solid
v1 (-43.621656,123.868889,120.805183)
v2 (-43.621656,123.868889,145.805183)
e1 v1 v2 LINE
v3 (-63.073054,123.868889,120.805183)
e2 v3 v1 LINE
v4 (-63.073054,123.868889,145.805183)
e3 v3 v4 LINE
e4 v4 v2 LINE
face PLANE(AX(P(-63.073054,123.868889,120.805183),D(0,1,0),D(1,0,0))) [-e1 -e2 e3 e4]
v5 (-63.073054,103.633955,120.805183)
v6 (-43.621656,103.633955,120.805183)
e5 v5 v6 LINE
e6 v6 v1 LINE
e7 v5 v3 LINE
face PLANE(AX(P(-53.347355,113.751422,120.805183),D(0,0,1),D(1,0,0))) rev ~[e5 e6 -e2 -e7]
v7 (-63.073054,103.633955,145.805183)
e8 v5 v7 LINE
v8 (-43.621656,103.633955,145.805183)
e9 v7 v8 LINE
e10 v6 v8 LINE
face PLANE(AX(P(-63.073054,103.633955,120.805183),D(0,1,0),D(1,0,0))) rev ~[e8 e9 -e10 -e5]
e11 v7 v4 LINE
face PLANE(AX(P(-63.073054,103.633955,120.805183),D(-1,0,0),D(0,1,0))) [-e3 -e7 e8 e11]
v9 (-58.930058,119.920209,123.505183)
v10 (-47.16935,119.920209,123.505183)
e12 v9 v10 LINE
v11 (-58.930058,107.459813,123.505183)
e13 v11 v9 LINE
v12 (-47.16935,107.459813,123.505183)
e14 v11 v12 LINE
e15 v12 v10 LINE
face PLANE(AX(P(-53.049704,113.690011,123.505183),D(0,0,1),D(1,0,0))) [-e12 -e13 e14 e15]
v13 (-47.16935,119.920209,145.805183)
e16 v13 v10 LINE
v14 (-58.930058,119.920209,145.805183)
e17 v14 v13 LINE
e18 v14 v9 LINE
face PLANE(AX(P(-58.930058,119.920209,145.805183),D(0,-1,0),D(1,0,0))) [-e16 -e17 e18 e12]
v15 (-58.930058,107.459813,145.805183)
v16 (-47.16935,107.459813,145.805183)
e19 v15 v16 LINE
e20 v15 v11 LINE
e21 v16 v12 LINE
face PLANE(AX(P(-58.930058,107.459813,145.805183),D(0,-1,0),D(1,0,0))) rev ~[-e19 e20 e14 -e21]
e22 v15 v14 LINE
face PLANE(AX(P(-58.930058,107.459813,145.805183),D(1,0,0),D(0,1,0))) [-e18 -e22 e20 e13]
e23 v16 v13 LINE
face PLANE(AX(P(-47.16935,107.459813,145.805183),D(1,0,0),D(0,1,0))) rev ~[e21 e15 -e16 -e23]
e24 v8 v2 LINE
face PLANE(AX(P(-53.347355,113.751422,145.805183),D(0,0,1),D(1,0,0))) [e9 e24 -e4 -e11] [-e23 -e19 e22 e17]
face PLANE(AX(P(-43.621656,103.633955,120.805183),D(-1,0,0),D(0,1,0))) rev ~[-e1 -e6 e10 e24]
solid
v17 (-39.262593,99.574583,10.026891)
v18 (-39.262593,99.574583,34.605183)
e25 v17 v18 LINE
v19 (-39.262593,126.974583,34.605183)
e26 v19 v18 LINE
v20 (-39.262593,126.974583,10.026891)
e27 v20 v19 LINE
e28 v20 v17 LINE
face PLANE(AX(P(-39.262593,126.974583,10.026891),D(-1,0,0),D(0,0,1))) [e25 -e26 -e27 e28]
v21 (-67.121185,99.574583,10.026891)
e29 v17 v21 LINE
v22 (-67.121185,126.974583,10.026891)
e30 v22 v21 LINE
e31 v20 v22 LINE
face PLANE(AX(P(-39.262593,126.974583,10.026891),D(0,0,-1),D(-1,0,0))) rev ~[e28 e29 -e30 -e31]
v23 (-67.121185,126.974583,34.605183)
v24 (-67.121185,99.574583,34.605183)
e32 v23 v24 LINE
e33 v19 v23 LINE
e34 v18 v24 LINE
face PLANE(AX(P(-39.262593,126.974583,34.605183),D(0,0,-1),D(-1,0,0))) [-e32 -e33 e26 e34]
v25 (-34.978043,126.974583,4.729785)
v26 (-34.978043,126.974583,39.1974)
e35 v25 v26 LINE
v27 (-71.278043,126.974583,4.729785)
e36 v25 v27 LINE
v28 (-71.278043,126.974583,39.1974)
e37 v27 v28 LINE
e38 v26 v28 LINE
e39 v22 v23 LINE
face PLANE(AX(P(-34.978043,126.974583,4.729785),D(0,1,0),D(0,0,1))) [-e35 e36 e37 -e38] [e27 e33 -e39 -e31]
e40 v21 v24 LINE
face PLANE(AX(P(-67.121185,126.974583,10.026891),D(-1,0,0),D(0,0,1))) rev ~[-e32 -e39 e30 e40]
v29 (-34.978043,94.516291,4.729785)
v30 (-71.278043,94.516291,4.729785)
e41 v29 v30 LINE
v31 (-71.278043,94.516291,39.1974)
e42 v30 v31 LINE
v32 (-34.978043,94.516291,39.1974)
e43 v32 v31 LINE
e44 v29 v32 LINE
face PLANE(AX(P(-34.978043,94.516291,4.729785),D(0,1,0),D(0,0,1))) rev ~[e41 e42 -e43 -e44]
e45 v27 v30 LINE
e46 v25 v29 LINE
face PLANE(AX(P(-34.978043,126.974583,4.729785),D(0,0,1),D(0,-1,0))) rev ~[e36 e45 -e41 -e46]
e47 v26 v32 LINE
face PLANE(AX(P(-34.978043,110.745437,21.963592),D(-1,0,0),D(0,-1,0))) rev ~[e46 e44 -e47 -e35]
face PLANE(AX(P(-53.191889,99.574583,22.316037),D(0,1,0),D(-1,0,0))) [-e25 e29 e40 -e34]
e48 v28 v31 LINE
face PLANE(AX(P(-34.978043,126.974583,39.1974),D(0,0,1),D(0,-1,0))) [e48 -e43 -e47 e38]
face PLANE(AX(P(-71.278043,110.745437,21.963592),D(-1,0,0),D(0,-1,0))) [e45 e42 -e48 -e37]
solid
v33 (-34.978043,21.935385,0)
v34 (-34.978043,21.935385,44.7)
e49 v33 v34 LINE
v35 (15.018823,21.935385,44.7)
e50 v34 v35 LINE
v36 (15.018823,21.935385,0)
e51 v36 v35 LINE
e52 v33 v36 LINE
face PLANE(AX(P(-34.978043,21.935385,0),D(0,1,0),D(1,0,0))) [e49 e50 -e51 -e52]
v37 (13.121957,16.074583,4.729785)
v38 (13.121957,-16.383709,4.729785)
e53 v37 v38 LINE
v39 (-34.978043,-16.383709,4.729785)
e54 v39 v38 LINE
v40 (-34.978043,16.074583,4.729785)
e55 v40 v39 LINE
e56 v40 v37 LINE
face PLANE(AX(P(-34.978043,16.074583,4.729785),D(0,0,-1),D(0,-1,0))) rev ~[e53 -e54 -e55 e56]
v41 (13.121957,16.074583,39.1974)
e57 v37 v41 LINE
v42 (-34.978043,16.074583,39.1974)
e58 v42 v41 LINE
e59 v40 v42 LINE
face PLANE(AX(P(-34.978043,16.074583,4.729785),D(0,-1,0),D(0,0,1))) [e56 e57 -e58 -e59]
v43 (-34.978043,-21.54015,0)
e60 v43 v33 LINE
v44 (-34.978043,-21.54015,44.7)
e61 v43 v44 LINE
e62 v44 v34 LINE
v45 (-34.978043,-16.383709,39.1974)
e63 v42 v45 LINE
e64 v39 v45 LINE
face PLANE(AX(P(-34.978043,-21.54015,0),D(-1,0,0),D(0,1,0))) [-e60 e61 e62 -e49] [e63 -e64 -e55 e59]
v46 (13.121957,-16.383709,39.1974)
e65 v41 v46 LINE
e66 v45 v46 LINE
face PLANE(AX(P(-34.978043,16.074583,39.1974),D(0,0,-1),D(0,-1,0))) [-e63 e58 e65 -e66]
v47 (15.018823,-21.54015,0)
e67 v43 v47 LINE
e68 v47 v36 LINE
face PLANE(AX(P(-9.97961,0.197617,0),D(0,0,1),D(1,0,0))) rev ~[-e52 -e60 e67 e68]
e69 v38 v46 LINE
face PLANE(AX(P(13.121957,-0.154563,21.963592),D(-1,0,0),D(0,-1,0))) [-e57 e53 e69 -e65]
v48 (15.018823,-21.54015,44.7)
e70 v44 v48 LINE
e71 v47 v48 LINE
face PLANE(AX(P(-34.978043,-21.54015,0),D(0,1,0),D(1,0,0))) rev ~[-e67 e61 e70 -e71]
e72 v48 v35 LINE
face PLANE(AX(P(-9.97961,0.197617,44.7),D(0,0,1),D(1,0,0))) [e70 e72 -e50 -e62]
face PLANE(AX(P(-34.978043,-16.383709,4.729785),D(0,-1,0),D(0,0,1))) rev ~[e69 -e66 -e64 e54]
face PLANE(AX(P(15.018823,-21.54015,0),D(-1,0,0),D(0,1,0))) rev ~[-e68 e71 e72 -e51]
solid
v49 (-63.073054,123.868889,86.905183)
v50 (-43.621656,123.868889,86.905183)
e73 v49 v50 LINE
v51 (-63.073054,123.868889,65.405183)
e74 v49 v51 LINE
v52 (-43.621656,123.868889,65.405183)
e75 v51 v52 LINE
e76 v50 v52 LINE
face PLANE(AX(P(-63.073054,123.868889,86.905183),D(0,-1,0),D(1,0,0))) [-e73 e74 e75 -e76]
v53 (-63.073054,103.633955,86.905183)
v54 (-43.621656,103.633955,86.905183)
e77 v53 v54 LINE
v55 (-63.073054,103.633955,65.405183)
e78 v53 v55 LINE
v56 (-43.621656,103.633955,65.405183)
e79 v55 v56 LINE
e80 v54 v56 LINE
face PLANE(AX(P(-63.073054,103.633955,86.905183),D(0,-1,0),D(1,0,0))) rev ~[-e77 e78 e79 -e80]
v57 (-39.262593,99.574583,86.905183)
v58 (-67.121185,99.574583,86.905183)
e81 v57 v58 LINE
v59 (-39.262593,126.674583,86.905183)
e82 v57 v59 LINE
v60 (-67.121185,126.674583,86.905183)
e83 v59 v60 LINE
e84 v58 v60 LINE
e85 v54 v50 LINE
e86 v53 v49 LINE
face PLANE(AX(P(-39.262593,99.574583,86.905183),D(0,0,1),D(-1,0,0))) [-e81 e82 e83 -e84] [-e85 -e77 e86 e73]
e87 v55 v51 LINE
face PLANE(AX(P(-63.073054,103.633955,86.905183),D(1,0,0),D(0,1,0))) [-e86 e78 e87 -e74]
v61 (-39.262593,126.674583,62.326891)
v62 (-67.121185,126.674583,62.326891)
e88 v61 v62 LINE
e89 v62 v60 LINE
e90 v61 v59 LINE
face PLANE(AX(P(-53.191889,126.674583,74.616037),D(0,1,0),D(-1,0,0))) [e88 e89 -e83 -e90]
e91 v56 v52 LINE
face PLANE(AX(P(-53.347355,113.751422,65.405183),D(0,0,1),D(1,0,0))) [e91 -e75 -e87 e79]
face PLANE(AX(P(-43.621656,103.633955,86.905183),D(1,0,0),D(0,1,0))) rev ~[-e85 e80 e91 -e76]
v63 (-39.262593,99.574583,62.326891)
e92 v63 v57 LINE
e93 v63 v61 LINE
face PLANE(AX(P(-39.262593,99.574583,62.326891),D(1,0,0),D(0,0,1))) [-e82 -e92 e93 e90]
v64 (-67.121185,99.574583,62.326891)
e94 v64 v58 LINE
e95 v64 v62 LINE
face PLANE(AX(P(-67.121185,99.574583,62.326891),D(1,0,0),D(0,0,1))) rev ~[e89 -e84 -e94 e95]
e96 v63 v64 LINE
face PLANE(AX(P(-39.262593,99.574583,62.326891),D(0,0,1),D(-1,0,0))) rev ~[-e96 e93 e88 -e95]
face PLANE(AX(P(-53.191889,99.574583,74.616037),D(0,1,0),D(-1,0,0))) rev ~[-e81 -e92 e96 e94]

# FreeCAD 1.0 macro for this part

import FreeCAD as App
import Part
import Sketcher

V = App.Vector
Q = App.Units.Quantity

doc = App.newDocument("Part")
body = doc.addObject("PartDesign::Body", "Body")

# Sketch on XY plane
sketch1 = body.newObject("Sketcher::SketchObject", "Sketch")
sketch1.AttachmentSupport = (doc.getObject("XY_Plane"), [""])
sketch1.MapMode = "FlatFace"
sketch1.addGeometry(Part.LineSegment(V(-35, 22, 0), V(-35, -22, 0)), False)
sketch1.addGeometry(Part.LineSegment(V(-35, -22, 0), V(15, -22, 0)), False)
sketch1.addGeometry(Part.LineSegment(V(15, -22, 0), V(15, 22, 0)), False)
sketch1.addGeometry(Part.LineSegment(V(15, 22, 0), V(-35, 22, 0)), False)
sketch1.addConstraint(Sketcher.Constraint("Coincident", 0, 2, 1, 1))
sketch1.addConstraint(Sketcher.Constraint("Coincident", 1, 2, 2, 1))
sketch1.addConstraint(Sketcher.Constraint("Coincident", 2, 2, 3, 1))
sketch1.addConstraint(Sketcher.Constraint("Coincident", 3, 2, 0, 1))
sketch1.addConstraint(Sketcher.Constraint("Vertical", 0))
sketch1.addConstraint(Sketcher.Constraint("Horizontal", 1))
sketch1.addConstraint(Sketcher.Constraint("Vertical", 2))
sketch1.addConstraint(Sketcher.Constraint("Horizontal", 3))
sketch1.addConstraint(Sketcher.Constraint("DistanceX", 1, 1, 1, 2, Q("49.996865 mm")))
sketch1.addConstraint(Sketcher.Constraint("DistanceY", 0, 2, 0, 1, Q("43.475535 mm")))
sketch1.addConstraint(Sketcher.Constraint("DistanceY", 0, 2, -1, 1, Q("21.54015 mm")))
sketch1.addConstraint(Sketcher.Constraint("DistanceX", 0, 2, -1, 1, Q("34.978043 mm")))
pad1 = body.newObject("PartDesign::Pad", "Pad")
pad1.Profile = sketch1
pad1.Length = 44.7

# Sketch on YZ plane
sketch2 = body.newObject("Sketcher::SketchObject", "Sketch001")
sketch2.AttachmentSupport = (doc.getObject("YZ_Plane"), [""])
sketch2.MapMode = "FlatFace"
sketch2.AttachmentOffset = App.Placement(V(0, 0, -34.978043), App.Rotation())
sketch2.addGeometry(Part.LineSegment(V(16, 39, 0), V(16, 5, 0)), False)
sketch2.addGeometry(Part.LineSegment(V(16, 5, 0), V(-16, 5, 0)), False)
sketch2.addGeometry(Part.LineSegment(V(-16, 5, 0), V(-16, 39, 0)), False)
sketch2.addGeometry(Part.LineSegment(V(-16, 39, 0), V(16, 39, 0)), False)
sketch2.addConstraint(Sketcher.Constraint("Coincident", 0, 2, 1, 1))
sketch2.addConstraint(Sketcher.Constraint("Coincident", 1, 2, 2, 1))
sketch2.addConstraint(Sketcher.Constraint("Coincident", 2, 2, 3, 1))
sketch2.addConstraint(Sketcher.Constraint("Coincident", 3, 2, 0, 1))
sketch2.addConstraint(Sketcher.Constraint("Vertical", 0))
sketch2.addConstraint(Sketcher.Constraint("Horizontal", 1))
sketch2.addConstraint(Sketcher.Constraint("Vertical", 2))
sketch2.addConstraint(Sketcher.Constraint("Horizontal", 3))
sketch2.addConstraint(Sketcher.Constraint("DistanceY", -1, 1, 2, 2, Q("39.1974 mm")))
sketch2.addConstraint(Sketcher.Constraint("DistanceX", 1, 2, 1, 1, Q("32.458292 mm")))
sketch2.addConstraint(Sketcher.Constraint("DistanceY", 0, 2, 0, 1, Q("34.467615 mm")))
sketch2.addConstraint(Sketcher.Constraint("DistanceX", 1, 2, -1, 1, Q("16.383709 mm")))
pocket1 = body.newObject("PartDesign::Pocket", "Pocket")
pocket1.Profile = sketch2
pocket1.Length = 48.1
pocket1.Reversed = True
body2 = doc.addObject("PartDesign::Body", "Body001")

# Sketch on YZ plane
sketch3 = body2.newObject("Sketcher::SketchObject", "Sketch002")
sketch3.AttachmentSupport = (doc.getObject("YZ_Plane001"), [""])
sketch3.MapMode = "FlatFace"
sketch3.AttachmentOffset = App.Placement(V(0, 0, -34.978043), App.Rotation())
sketch3.addGeometry(Part.LineSegment(V(16, 39, 0), V(16, 5, 0)), False)
sketch3.addGeometry(Part.LineSegment(V(16, 5, 0), V(-16, 5, 0)), False)
sketch3.addGeometry(Part.LineSegment(V(-16, 5, 0), V(-16, 39, 0)), False)
sketch3.addGeometry(Part.LineSegment(V(-16, 39, 0), V(16, 39, 0)), False)
sketch3.addConstraint(Sketcher.Constraint("Coincident", 0, 2, 1, 1))
sketch3.addConstraint(Sketcher.Constraint("Coincident", 1, 2, 2, 1))
sketch3.addConstraint(Sketcher.Constraint("Coincident", 2, 2, 3, 1))
sketch3.addConstraint(Sketcher.Constraint("Coincident", 3, 2, 0, 1))
sketch3.addConstraint(Sketcher.Constraint("Vertical", 0))
sketch3.addConstraint(Sketcher.Constraint("Horizontal", 1))
sketch3.addConstraint(Sketcher.Constraint("Vertical", 2))
sketch3.addConstraint(Sketcher.Constraint("Horizontal", 3))
sketch3.addConstraint(Sketcher.Constraint("DistanceY", -1, 1, 2, 2, Q("39.1974 mm")))
sketch3.addConstraint(Sketcher.Constraint("DistanceX", 1, 2, 1, 1, Q("32.458292 mm")))
sketch3.addConstraint(Sketcher.Constraint("DistanceY", 0, 2, 0, 1, Q("34.467615 mm")))
sketch3.addConstraint(Sketcher.Constraint("DistanceX", 1, 2, -1, 1, Q("16.383709 mm")))
pad2 = body2.newObject("PartDesign::Pad", "Pad001")
pad2.Profile = sketch3
pad2.Length = 36.3
pad2.Reversed = True
body3 = doc.addObject("PartDesign::Body", "Body002")
doc.recompute()

body2.Placement = App.Placement(V(0, 110.9, 0), App.Rotation(V(0, 0, 1), 0))
boolean = body3.newObject("PartDesign::Boolean", "Boolean")
boolean.Type = "Fuse"
boolean.addObjects([body2])

# Sketch on XZ plane
sketch4 = body3.newObject("Sketcher::SketchObject", "Sketch003")
sketch4.AttachmentSupport = (doc.getObject("XZ_Plane002"), [""])
sketch4.MapMode = "FlatFace"
sketch4.AttachmentOffset = App.Placement(V(0, 0, -126.974583), App.Rotation())
sketch4.addGeometry(Part.LineSegment(V(-39, 35, 0), V(-39, 10, 0)), False)
sketch4.addGeometry(Part.LineSegment(V(-39, 10, 0), V(-67, 10, 0)), False)
sketch4.addGeometry(Part.LineSegment(V(-67, 10, 0), V(-67, 35, 0)), False)
sketch4.addGeometry(Part.LineSegment(V(-67, 35, 0), V(-39, 35, 0)), False)
sketch4.addConstraint(Sketcher.Constraint("Coincident", 0, 2, 1, 1))
sketch4.addConstraint(Sketcher.Constraint("Coincident", 1, 2, 2, 1))
sketch4.addConstraint(Sketcher.Constraint("Coincident", 2, 2, 3, 1))
sketch4.addConstraint(Sketcher.Constraint("Coincident", 3, 2, 0, 1))
sketch4.addConstraint(Sketcher.Constraint("Vertical", 0))
sketch4.addConstraint(Sketcher.Constraint("Horizontal", 1))
sketch4.addConstraint(Sketcher.Constraint("Vertical", 2))
sketch4.addConstraint(Sketcher.Constraint("Horizontal", 3))
sketch4.addConstraint(Sketcher.Constraint("DistanceX", 1, 2, 1, 1, Q("27.858592 mm")))
sketch4.addConstraint(Sketcher.Constraint("DistanceY", 0, 2, 0, 1, Q("24.578292 mm")))
sketch4.addConstraint(Sketcher.Constraint("DistanceY", -1, 1, 0, 2, Q("10.026891 mm")))
sketch4.addConstraint(Sketcher.Constraint("DistanceX", 0, 2, -1, 1, Q("39.262593 mm")))
pocket2 = body3.newObject("PartDesign::Pocket", "Pocket001")
pocket2.Profile = sketch4
pocket2.Length = 27.4
pocket2.Reversed = True
body4 = doc.addObject("PartDesign::Body", "Body003")

# Sketch on XZ plane
sketch5 = body4.newObject("Sketcher::SketchObject", "Sketch004")
sketch5.AttachmentSupport = (doc.getObject("XZ_Plane003"), [""])
sketch5.MapMode = "FlatFace"
sketch5.AttachmentOffset = App.Placement(V(0, 0, -99.574583), App.Rotation())
sketch5.addGeometry(Part.LineSegment(V(-39, 35, 0), V(-39, 10, 0)), False)
sketch5.addGeometry(Part.LineSegment(V(-39, 10, 0), V(-67, 10, 0)), False)
sketch5.addGeometry(Part.LineSegment(V(-67, 10, 0), V(-67, 35, 0)), False)
sketch5.addGeometry(Part.LineSegment(V(-67, 35, 0), V(-39, 35, 0)), False)
sketch5.addConstraint(Sketcher.Constraint("Coincident", 0, 2, 1, 1))
sketch5.addConstraint(Sketcher.Constraint("Coincident", 1, 2, 2, 1))
sketch5.addConstraint(Sketcher.Constraint("Coincident", 2, 2, 3, 1))
sketch5.addConstraint(Sketcher.Constraint("Coincident", 3, 2, 0, 1))
sketch5.addConstraint(Sketcher.Constraint("Vertical", 0))
sketch5.addConstraint(Sketcher.Constraint("Horizontal", 1))
sketch5.addConstraint(Sketcher.Constraint("Vertical", 2))
sketch5.addConstraint(Sketcher.Constraint("Horizontal", 3))
sketch5.addConstraint(Sketcher.Constraint("DistanceX", 1, 2, 1, 1, Q("27.858592 mm")))
sketch5.addConstraint(Sketcher.Constraint("DistanceY", 0, 2, 0, 1, Q("24.578292 mm")))
sketch5.addConstraint(Sketcher.Constraint("DistanceY", -1, 1, 0, 2, Q("10.026891 mm")))
sketch5.addConstraint(Sketcher.Constraint("DistanceX", 0, 2, -1, 1, Q("39.262593 mm")))
pad3 = body4.newObject("PartDesign::Pad", "Pad002")
pad3.Profile = sketch5
pad3.Length = 27.1
pad3.Reversed = True
body5 = doc.addObject("PartDesign::Body", "Body004")
doc.recompute()

body4.Placement = App.Placement(V(0, 0, 52.3), App.Rotation(V(0, 0, 1), 0))
boolean2 = body5.newObject("PartDesign::Boolean", "Boolean001")
boolean2.Type = "Fuse"
boolean2.addObjects([body4])

# Sketch on XY plane
sketch6 = body5.newObject("Sketcher::SketchObject", "Sketch005")
sketch6.AttachmentSupport = (doc.getObject("XY_Plane004"), [""])
sketch6.MapMode = "FlatFace"
sketch6.AttachmentOffset = App.Placement(V(0, 0, 86.905183), App.Rotation())
sketch6.addGeometry(Part.LineSegment(V(-63, 124, 0), V(-63, 104, 0)), False)
sketch6.addGeometry(Part.LineSegment(V(-63, 104, 0), V(-44, 104, 0)), False)
sketch6.addGeometry(Part.LineSegment(V(-44, 104, 0), V(-44, 124, 0)), False)
sketch6.addGeometry(Part.LineSegment(V(-44, 124, 0), V(-63, 124, 0)), False)
sketch6.addConstraint(Sketcher.Constraint("Coincident", 0, 2, 1, 1))
sketch6.addConstraint(Sketcher.Constraint("Coincident", 1, 2, 2, 1))
sketch6.addConstraint(Sketcher.Constraint("Coincident", 2, 2, 3, 1))
sketch6.addConstraint(Sketcher.Constraint("Coincident", 3, 2, 0, 1))
sketch6.addConstraint(Sketcher.Constraint("Vertical", 0))
sketch6.addConstraint(Sketcher.Constraint("Horizontal", 1))
sketch6.addConstraint(Sketcher.Constraint("Vertical", 2))
sketch6.addConstraint(Sketcher.Constraint("Horizontal", 3))
sketch6.addConstraint(Sketcher.Constraint("DistanceX", 1, 1, 1, 2, Q("19.451398 mm")))
sketch6.addConstraint(Sketcher.Constraint("DistanceY", 0, 2, 0, 1, Q("20.234935 mm")))
sketch6.addConstraint(Sketcher.Constraint("DistanceY", -1, 1, 2, 2, Q("123.868889 mm")))
sketch6.addConstraint(Sketcher.Constraint("DistanceX", 0, 2, -1, 1, Q("63.073054 mm")))
pocket3 = body5.newObject("PartDesign::Pocket", "Pocket002")
pocket3.Profile = sketch6
pocket3.Length = 21.5
body6 = doc.addObject("PartDesign::Body", "Body005")

# Sketch on XY plane
sketch7 = body6.newObject("Sketcher::SketchObject", "Sketch006")
sketch7.AttachmentSupport = (doc.getObject("XY_Plane005"), [""])
sketch7.MapMode = "FlatFace"
sketch7.AttachmentOffset = App.Placement(V(0, 0, 86.905183), App.Rotation())
sketch7.addGeometry(Part.LineSegment(V(-63, 124, 0), V(-63, 104, 0)), False)
sketch7.addGeometry(Part.LineSegment(V(-63, 104, 0), V(-44, 104, 0)), False)
sketch7.addGeometry(Part.LineSegment(V(-44, 104, 0), V(-44, 124, 0)), False)
sketch7.addGeometry(Part.LineSegment(V(-44, 124, 0), V(-63, 124, 0)), False)
sketch7.addConstraint(Sketcher.Constraint("Coincident", 0, 2, 1, 1))
sketch7.addConstraint(Sketcher.Constraint("Coincident", 1, 2, 2, 1))
sketch7.addConstraint(Sketcher.Constraint("Coincident", 2, 2, 3, 1))
sketch7.addConstraint(Sketcher.Constraint("Coincident", 3, 2, 0, 1))
sketch7.addConstraint(Sketcher.Constraint("Vertical", 0))
sketch7.addConstraint(Sketcher.Constraint("Horizontal", 1))
sketch7.addConstraint(Sketcher.Constraint("Vertical", 2))
sketch7.addConstraint(Sketcher.Constraint("Horizontal", 3))
sketch7.addConstraint(Sketcher.Constraint("DistanceX", 1, 1, 1, 2, Q("19.451398 mm")))
sketch7.addConstraint(Sketcher.Constraint("DistanceY", 0, 2, 0, 1, Q("20.234935 mm")))
sketch7.addConstraint(Sketcher.Constraint("DistanceY", -1, 1, 2, 2, Q("123.868889 mm")))
sketch7.addConstraint(Sketcher.Constraint("DistanceX", 0, 2, -1, 1, Q("63.073054 mm")))
pad4 = body6.newObject("PartDesign::Pad", "Pad003")
pad4.Profile = sketch7
pad4.Length = 25
body7 = doc.addObject("PartDesign::Body", "Body006")
doc.recompute()

body6.Placement = App.Placement(V(0, 0, 33.9), App.Rotation(V(0, 0, 1), 0))
boolean3 = body7.newObject("PartDesign::Boolean", "Boolean002")
boolean3.Type = "Fuse"
boolean3.addObjects([body6])

# Sketch on XY plane
sketch8 = body7.newObject("Sketcher::SketchObject", "Sketch007")
sketch8.AttachmentSupport = (doc.getObject("XY_Plane006"), [""])
sketch8.MapMode = "FlatFace"
sketch8.AttachmentOffset = App.Placement(V(0, 0, 145.805183), App.Rotation())
sketch8.addGeometry(Part.LineSegment(V(-59, 120, 0), V(-59, 107, 0)), False)
sketch8.addGeometry(Part.LineSegment(V(-59, 107, 0), V(-47, 107, 0)), False)
sketch8.addGeometry(Part.LineSegment(V(-47, 107, 0), V(-47, 120, 0)), False)
sketch8.addGeometry(Part.LineSegment(V(-47, 120, 0), V(-59, 120, 0)), False)
sketch8.addConstraint(Sketcher.Constraint("Coincident", 0, 2, 1, 1))
sketch8.addConstraint(Sketcher.Constraint("Coincident", 1, 2, 2, 1))
sketch8.addConstraint(Sketcher.Constraint("Coincident", 2, 2, 3, 1))
sketch8.addConstraint(Sketcher.Constraint("Coincident", 3, 2, 0, 1))
sketch8.addConstraint(Sketcher.Constraint("Vertical", 0))
sketch8.addConstraint(Sketcher.Constraint("Horizontal", 1))
sketch8.addConstraint(Sketcher.Constraint("Vertical", 2))
sketch8.addConstraint(Sketcher.Constraint("Horizontal", 3))
sketch8.addConstraint(Sketcher.Constraint("DistanceX", 1, 1, 1, 2, Q("11.760708 mm")))
sketch8.addConstraint(Sketcher.Constraint("DistanceY", 0, 2, 0, 1, Q("12.460396 mm")))
sketch8.addConstraint(Sketcher.Constraint("DistanceX", 0, 2, -1, 1, Q("58.930058 mm")))
sketch8.addConstraint(Sketcher.Constraint("DistanceY", -1, 1, 2, 2, Q("119.920209 mm")))
pocket4 = body7.newObject("PartDesign::Pocket", "Pocket003")
pocket4.Profile = sketch8
pocket4.Length = 22.3

doc.recompute()
